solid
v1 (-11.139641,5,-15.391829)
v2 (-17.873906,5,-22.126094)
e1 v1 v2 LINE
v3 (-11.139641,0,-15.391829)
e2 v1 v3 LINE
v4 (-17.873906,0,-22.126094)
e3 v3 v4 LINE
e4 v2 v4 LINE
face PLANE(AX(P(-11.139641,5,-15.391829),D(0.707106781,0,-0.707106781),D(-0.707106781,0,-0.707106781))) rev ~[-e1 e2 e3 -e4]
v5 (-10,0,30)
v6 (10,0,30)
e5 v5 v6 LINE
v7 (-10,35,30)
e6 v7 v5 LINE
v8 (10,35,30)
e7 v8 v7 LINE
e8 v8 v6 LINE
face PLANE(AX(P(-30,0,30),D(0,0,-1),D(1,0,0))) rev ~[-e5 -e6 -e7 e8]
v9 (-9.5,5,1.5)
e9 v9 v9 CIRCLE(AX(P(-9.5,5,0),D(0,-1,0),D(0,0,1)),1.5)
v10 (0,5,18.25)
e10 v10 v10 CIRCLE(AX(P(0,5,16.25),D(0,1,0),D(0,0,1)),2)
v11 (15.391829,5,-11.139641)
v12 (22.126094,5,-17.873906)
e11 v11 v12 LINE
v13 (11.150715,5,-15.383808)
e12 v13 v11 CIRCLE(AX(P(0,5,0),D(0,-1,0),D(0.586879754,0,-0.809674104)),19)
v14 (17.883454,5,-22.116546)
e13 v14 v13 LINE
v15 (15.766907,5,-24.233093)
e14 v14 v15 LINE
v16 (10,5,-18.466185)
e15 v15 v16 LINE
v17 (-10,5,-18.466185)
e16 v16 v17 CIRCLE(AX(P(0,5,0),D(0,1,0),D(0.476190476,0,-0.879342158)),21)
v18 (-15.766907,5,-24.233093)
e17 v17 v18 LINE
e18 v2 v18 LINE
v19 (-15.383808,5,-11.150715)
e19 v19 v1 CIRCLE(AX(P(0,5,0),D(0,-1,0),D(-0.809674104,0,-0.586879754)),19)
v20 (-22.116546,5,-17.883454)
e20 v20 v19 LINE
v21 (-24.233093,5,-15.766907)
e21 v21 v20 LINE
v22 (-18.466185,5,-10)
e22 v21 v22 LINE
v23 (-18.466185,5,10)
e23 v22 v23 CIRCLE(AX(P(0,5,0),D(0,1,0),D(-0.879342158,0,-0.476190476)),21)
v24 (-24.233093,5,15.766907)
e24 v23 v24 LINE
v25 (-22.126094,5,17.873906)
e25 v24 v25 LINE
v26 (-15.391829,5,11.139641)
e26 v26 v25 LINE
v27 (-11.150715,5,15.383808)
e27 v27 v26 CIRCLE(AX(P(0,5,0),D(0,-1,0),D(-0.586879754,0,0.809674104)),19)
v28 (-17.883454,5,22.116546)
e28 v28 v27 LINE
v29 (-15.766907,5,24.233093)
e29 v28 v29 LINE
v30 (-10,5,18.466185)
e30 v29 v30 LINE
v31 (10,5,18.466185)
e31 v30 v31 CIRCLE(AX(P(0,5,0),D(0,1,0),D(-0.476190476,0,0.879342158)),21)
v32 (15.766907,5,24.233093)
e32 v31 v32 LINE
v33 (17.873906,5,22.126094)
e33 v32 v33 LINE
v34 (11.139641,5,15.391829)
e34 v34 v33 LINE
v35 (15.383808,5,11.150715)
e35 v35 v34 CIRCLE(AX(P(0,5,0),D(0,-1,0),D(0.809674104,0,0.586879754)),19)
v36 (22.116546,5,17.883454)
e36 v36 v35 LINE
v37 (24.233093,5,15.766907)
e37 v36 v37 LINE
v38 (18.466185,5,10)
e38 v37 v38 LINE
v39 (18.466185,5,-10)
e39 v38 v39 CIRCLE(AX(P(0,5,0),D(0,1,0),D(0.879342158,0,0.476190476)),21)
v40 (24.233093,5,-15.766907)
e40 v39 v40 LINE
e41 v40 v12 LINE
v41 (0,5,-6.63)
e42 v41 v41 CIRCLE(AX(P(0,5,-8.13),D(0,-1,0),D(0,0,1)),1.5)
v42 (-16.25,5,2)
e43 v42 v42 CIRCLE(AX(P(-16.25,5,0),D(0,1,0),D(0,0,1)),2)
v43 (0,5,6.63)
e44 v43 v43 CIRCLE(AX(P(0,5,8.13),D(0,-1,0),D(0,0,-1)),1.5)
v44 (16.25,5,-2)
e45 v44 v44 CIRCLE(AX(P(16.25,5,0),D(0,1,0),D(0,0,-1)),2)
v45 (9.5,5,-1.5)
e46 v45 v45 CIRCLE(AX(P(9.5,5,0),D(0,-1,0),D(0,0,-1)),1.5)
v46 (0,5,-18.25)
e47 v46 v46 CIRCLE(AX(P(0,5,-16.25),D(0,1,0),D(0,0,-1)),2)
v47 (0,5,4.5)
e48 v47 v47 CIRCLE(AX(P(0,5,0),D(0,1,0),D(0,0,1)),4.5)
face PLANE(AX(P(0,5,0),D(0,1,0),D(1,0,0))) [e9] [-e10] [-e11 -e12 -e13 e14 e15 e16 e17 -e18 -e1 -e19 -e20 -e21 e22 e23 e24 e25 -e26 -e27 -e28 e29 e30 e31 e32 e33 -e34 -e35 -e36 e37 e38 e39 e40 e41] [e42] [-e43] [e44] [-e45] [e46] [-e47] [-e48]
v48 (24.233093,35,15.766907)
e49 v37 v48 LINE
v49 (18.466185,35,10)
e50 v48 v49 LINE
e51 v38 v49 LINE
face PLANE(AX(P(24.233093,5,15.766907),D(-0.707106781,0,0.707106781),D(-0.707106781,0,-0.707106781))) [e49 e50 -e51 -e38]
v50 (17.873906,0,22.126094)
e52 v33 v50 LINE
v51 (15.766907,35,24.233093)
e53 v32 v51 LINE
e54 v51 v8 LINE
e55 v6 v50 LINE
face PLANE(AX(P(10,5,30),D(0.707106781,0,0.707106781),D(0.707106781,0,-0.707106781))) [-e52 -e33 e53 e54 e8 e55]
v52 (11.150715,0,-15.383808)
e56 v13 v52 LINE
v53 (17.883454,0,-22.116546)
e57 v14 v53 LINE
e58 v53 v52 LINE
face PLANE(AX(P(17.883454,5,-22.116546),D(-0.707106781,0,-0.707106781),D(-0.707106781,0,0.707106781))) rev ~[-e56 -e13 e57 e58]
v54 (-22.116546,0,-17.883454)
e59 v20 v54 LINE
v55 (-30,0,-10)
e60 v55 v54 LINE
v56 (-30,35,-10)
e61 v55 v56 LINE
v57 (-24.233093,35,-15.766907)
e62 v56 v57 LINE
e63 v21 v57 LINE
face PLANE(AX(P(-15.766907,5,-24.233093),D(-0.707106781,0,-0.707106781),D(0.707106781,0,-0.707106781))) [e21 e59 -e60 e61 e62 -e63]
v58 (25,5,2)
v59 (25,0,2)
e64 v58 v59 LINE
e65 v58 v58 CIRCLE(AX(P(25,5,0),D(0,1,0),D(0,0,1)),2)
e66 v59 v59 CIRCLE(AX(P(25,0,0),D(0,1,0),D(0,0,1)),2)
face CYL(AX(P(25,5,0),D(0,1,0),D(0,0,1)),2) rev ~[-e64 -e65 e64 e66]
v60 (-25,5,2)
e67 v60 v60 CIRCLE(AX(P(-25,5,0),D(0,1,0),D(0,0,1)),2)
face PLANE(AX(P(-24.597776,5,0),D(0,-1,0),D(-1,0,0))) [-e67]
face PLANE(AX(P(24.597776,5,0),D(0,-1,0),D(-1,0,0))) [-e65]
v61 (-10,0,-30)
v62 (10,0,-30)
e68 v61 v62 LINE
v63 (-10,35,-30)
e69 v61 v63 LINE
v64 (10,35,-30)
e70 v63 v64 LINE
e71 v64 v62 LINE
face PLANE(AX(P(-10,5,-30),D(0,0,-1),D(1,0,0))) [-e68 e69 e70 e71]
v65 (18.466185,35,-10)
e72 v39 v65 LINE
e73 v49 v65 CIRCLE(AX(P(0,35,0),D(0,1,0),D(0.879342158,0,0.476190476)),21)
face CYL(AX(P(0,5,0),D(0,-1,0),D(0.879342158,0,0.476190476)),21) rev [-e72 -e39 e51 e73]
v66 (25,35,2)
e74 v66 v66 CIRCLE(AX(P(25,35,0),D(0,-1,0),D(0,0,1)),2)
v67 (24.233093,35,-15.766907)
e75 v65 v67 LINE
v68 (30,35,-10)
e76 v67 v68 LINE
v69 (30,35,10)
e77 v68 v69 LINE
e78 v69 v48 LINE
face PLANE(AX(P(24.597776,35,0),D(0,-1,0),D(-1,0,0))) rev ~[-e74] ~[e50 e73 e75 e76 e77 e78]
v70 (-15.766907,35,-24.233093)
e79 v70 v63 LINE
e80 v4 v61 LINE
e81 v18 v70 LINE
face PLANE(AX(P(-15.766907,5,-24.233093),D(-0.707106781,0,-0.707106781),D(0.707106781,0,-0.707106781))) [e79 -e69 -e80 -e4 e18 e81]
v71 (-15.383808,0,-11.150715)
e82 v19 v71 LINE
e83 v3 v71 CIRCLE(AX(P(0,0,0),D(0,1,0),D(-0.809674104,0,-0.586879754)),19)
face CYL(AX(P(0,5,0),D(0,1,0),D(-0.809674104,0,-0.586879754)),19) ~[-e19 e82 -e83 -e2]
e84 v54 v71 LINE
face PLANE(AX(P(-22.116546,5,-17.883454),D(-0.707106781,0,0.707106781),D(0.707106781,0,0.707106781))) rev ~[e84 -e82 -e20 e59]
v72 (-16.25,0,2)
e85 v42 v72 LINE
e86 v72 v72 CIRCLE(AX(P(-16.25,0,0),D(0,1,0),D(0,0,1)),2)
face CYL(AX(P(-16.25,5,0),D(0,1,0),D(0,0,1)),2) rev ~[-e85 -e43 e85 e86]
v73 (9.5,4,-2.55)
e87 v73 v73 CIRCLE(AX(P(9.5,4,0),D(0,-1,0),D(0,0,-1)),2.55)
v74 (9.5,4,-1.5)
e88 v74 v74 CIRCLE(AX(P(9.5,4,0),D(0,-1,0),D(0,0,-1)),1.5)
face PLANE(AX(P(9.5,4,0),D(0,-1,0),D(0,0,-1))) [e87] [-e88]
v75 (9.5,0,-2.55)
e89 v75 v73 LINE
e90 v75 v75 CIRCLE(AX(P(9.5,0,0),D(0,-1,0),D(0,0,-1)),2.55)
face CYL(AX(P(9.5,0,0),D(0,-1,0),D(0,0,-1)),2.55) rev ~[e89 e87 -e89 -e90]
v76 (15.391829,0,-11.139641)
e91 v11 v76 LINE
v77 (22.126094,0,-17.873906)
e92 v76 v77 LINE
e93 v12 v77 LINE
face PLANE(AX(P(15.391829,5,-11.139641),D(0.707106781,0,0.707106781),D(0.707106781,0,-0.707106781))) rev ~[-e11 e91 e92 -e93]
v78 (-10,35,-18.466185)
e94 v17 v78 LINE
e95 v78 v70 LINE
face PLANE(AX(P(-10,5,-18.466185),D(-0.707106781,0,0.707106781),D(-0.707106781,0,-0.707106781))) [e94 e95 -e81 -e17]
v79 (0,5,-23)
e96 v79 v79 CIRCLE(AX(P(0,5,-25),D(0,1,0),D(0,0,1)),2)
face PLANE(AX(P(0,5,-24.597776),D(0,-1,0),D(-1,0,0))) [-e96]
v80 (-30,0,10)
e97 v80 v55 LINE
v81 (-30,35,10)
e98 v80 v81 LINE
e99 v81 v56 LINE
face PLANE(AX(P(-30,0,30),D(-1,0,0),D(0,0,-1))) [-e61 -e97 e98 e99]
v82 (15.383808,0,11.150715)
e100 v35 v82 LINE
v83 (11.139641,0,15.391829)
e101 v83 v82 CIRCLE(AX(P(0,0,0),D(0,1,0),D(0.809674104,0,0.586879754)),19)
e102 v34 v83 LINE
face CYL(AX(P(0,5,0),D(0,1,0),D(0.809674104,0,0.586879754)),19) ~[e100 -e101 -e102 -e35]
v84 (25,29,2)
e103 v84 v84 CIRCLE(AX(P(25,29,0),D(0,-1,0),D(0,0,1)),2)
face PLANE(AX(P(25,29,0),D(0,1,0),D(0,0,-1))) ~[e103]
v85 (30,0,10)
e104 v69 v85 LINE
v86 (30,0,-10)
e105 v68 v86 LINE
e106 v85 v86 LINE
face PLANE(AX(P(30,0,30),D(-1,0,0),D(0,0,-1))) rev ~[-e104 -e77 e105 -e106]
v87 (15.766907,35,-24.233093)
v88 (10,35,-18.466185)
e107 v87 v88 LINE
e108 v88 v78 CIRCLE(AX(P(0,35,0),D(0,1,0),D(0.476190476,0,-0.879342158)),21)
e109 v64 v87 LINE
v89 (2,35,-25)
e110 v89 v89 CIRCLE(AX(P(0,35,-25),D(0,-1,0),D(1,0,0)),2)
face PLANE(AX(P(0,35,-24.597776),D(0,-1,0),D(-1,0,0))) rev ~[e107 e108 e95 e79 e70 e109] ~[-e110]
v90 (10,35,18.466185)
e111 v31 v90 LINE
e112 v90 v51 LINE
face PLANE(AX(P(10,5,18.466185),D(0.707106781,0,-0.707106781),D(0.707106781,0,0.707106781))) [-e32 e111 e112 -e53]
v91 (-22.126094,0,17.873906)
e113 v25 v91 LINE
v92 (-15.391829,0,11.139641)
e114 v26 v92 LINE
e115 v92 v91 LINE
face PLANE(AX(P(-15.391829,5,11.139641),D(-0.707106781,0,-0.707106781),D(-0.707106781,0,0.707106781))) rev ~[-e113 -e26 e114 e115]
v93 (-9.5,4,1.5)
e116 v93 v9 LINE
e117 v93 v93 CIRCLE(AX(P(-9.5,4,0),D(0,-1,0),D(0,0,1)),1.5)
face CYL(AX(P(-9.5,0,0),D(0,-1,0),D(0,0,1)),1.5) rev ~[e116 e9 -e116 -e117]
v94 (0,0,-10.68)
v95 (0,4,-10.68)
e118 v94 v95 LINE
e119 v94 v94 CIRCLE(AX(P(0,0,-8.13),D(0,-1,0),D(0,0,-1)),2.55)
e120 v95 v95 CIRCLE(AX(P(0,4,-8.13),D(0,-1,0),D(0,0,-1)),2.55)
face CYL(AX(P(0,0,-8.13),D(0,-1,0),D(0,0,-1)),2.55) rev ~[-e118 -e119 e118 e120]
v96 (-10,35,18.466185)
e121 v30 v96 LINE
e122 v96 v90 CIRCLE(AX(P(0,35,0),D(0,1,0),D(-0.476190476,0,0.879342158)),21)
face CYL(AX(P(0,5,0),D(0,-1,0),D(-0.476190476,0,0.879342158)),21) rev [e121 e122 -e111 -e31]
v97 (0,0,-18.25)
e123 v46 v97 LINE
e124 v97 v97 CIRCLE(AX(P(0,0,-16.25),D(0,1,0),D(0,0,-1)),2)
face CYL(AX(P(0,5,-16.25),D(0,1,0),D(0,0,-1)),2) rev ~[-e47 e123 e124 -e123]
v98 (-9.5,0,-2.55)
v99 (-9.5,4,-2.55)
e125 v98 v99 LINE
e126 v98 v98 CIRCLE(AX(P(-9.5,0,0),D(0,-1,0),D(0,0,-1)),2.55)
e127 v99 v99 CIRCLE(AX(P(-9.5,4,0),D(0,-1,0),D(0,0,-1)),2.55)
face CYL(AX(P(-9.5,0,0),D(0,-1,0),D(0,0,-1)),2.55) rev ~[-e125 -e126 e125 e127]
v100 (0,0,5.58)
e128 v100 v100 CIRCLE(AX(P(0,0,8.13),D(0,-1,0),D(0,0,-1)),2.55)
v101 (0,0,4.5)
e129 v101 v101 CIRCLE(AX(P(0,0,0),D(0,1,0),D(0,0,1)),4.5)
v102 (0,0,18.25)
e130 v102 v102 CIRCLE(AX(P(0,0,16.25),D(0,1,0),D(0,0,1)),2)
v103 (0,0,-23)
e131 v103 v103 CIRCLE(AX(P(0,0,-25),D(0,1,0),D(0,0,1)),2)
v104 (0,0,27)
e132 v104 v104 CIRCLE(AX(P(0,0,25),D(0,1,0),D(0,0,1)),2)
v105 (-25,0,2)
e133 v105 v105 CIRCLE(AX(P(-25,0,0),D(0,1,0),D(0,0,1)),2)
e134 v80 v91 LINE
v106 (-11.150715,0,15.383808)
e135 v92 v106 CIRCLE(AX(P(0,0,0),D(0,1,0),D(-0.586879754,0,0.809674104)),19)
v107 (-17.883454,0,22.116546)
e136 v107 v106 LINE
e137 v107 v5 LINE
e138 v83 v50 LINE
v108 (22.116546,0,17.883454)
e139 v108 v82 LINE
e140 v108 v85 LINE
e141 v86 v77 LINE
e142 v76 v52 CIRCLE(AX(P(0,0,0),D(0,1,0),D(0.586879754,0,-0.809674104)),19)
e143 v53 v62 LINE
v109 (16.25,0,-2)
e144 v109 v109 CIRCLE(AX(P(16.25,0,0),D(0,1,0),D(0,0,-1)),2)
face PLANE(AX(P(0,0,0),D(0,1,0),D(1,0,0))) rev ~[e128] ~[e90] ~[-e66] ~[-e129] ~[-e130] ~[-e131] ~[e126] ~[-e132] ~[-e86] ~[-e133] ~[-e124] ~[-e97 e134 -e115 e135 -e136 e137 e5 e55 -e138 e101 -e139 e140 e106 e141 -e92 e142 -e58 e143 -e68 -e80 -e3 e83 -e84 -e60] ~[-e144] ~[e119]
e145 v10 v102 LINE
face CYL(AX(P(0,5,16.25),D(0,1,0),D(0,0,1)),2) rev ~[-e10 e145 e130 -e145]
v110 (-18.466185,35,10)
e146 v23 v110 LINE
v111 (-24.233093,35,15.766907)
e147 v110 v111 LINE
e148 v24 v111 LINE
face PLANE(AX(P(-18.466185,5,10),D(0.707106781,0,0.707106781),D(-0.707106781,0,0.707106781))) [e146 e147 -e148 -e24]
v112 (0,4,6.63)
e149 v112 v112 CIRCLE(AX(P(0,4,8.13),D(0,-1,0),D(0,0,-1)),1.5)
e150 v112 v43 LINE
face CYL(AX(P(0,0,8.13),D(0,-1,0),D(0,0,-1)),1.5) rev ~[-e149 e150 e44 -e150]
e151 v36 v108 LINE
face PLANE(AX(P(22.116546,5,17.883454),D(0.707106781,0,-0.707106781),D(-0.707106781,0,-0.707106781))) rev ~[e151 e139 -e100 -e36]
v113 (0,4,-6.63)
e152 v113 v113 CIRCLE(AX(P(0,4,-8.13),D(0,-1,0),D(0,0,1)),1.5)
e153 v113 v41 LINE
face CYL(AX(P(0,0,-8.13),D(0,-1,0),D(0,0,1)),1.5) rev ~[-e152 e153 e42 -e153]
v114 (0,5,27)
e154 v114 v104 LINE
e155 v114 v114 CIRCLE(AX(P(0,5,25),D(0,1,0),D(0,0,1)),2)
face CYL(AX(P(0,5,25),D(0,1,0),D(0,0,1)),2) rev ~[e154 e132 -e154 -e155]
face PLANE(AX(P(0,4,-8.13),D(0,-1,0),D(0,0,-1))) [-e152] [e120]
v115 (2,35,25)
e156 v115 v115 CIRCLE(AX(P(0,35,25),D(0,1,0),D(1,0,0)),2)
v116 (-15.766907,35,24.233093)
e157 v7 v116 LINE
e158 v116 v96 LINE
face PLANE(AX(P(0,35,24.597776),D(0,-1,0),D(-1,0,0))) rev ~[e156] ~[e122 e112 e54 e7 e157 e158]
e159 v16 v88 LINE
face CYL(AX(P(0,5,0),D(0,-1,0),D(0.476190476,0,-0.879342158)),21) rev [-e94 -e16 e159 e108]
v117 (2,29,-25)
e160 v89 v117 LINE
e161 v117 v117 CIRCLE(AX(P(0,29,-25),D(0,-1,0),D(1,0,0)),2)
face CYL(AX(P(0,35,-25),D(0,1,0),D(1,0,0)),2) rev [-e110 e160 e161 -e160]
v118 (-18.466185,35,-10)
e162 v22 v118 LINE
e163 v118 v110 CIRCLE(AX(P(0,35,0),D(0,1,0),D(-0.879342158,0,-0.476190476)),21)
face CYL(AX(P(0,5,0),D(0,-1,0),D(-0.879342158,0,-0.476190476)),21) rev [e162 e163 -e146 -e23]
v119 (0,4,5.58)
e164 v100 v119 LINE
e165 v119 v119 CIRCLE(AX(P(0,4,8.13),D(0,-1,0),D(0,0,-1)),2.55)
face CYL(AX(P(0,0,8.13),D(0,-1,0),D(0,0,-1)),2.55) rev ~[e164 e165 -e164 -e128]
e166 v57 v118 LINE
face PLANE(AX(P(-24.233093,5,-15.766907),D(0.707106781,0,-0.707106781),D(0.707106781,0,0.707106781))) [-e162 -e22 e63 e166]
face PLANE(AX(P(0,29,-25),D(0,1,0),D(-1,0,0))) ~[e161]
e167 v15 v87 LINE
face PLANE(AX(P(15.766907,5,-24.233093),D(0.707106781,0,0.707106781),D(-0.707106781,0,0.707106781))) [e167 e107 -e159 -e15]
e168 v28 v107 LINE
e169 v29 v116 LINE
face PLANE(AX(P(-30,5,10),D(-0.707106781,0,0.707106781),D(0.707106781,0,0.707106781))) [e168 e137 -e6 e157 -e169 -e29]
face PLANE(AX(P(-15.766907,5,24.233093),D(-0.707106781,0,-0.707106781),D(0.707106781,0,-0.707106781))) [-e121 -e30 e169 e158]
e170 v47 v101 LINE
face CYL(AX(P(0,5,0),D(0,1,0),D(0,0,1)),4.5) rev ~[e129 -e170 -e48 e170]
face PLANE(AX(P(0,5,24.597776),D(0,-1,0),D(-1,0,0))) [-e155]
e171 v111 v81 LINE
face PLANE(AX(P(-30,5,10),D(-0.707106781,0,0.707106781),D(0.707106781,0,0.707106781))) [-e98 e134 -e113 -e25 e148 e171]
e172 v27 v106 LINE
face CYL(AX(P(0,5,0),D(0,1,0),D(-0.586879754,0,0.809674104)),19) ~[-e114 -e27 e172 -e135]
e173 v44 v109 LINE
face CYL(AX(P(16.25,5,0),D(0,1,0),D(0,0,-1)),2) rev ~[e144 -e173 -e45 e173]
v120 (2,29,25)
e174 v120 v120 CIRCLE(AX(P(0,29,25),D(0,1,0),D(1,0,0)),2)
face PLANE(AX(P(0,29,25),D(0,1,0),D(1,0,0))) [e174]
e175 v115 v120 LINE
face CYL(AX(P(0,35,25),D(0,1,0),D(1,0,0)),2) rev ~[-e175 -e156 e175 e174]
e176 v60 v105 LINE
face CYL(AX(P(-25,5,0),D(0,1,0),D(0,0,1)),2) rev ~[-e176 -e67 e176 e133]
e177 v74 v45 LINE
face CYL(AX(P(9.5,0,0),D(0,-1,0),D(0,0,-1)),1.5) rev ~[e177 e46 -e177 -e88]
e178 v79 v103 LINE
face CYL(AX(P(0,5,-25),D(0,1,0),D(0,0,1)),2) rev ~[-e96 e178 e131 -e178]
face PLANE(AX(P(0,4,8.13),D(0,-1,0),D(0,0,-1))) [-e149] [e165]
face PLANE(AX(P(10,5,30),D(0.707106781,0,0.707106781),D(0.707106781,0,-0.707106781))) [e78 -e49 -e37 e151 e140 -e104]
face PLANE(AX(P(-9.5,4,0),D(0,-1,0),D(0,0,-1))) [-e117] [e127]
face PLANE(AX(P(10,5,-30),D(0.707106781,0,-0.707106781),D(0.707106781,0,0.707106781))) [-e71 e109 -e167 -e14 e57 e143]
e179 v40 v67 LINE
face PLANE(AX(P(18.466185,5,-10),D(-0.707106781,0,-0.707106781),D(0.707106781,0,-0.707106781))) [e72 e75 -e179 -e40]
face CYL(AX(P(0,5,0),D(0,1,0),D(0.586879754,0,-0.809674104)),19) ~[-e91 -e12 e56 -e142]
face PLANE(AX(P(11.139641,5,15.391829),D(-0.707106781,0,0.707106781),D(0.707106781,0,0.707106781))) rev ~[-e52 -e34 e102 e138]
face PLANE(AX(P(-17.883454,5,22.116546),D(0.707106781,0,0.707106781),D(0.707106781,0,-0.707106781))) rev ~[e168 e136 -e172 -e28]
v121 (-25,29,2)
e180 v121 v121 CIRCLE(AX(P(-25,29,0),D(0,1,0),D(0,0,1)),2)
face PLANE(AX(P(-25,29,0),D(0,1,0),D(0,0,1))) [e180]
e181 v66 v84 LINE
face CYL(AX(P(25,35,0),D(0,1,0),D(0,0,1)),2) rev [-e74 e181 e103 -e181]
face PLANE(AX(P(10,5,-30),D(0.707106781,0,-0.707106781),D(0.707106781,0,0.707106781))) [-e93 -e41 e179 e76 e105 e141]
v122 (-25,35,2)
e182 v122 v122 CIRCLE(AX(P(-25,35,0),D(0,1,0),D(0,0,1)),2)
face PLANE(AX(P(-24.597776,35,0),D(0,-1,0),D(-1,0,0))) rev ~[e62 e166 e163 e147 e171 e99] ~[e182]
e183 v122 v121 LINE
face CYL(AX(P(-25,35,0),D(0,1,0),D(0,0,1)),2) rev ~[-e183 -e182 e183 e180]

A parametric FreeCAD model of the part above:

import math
import FreeCAD as App
import Part
import Sketcher
from FreeCAD import Vector
Q = App.Units.Quantity


def add_polygon(sketch, points):
    """Adds a closed chain of lines whose ends are joined by coincident constraints."""
    first, n = sketch.GeometryCount, len(points)
    for a, b in zip(points, points[1:] + points[:1]):
        sketch.addGeometry(Part.LineSegment(App.Vector(*a, 0), App.Vector(*b, 0)), False)
    for i in range(n):
        sketch.addConstraint(Sketcher.Constraint("Coincident", first + i, 2, first + (i + 1) % n, 1))

doc = App.newDocument("Part")
body = doc.addObject("PartDesign::Body", "Body")

sketch1 = doc.addObject("Sketcher::SketchObject", "Sketch")
body.addObject(sketch1)
sketch1.AttachmentSupport = (doc.XZ_Plane, [""])
sketch1.MapMode = "FlatFace"
add_polygon(sketch1, [(-30, -30), (-30, 30), (30, 30), (30, -30)])
sketch1.addConstraint([
    Sketcher.Constraint("Vertical", 0),
    Sketcher.Constraint("Horizontal", 1),
    Sketcher.Constraint("Vertical", 2),
    Sketcher.Constraint("Horizontal", 3),
    Sketcher.Constraint("Symmetric", 0, 2, 2, 2, -1, 1),
    Sketcher.Constraint("Equal", 3, 0),
    Sketcher.Constraint("DistanceX", 1, 1, 1, 2, Q("60 mm")),
])
pad1 = doc.addObject("PartDesign::Pad", "Pad")
body.addObject(pad1)
pad1.Profile = sketch1
pad1.Length = 5
pad1.Reversed = True

sketch2 = doc.addObject("Sketcher::SketchObject", "Sketch001")
body.addObject(sketch2)
sketch2.AttachmentSupport = (doc.XZ_Plane, [""])
sketch2.MapMode = "FlatFace"
sketch2.AttachmentOffset = App.Placement(Vector(0, 0, -5), App.Rotation())
sketch2.addGeometry([
    Part.Circle(Vector(-16.2, 0, 0), Vector(0, 0, 1), 2),
    Part.Circle(Vector(16.2, 0, 0), Vector(0, 0, 1), 2),
    Part.Circle(Vector(0, 16.2, 0), Vector(0, 0, 1), 2),
    Part.Circle(Vector(0, -16.2, 0), Vector(0, 0, 1), 2),
], False)
sketch2.addConstraint([
    Sketcher.Constraint("Equal", 0, 1),
    Sketcher.Constraint("Equal", 1, 2),
    Sketcher.Constraint("Equal", 2, 3),
    Sketcher.Constraint("Symmetric", 0, 3, 1, 3, -1, 1),
    Sketcher.Constraint("Symmetric", 2, 3, 3, 3, -1, 1),
    Sketcher.Constraint("PointOnObject", 0, 3, -1),
    Sketcher.Constraint("PointOnObject", 2, 3, -2),
    Sketcher.Constraint("Diameter", 0, Q("4 mm")),
    Sketcher.Constraint("DistanceX", 0, 3, 1, 3, Q("32.5 mm")),
    Sketcher.Constraint("DistanceY", 3, 3, 2, 3, Q("32.5 mm")),
])
pocket1 = doc.addObject("PartDesign::Pocket", "Pocket")
body.addObject(pocket1)
pocket1.Profile = sketch2
pocket1.Type = "ThroughAll"
pocket1.Reversed = True

sketch3 = doc.addObject("Sketcher::SketchObject", "Sketch002")
body.addObject(sketch3)
sketch3.AttachmentSupport = (doc.XZ_Plane, [""])
sketch3.MapMode = "FlatFace"
sketch3.AttachmentOffset = App.Placement(Vector(0, 0, -5), App.Rotation())
sketch3.addGeometry(Part.Circle(Vector(0, 0, 0), Vector(0, 0, 1), 4.5), False)
sketch3.addConstraint([
    Sketcher.Constraint("Coincident", 0, 3, -1, 1),
    Sketcher.Constraint("Diameter", 0, Q("9 mm")),
])
pocket2 = doc.addObject("PartDesign::Pocket", "Pocket001")
body.addObject(pocket2)
pocket2.Profile = sketch3
pocket2.Type = "ThroughAll"
pocket2.Reversed = True

sketch4 = doc.addObject("Sketcher::SketchObject", "Sketch003")
body.addObject(sketch4)
sketch4.AttachmentSupport = (doc.XZ_Plane, [""])
sketch4.MapMode = "FlatFace"
sketch4.AttachmentOffset = App.Placement(Vector(0, 0, -5), App.Rotation())
sketch4.addGeometry(Part.Circle(Vector(0, -9.5, 0), Vector(0, 0, 1), 1.5), False)
sketch4.addConstraint([
    Sketcher.Constraint("PointOnObject", 0, 3, -2),
    Sketcher.Constraint("Diameter", 0, Q("3 mm")),
    Sketcher.Constraint("DistanceY", 0, 3, -1, 1, Q("9.5 mm")),
])
pocket3 = doc.addObject("PartDesign::Pocket", "Pocket002")
body.addObject(pocket3)
pocket3.Profile = sketch4
pocket3.Length = 10
pocket3.Reversed = True

sketch5 = doc.addObject("Sketcher::SketchObject", "Sketch004")
body.addObject(sketch5)
sketch5.AttachmentSupport = (doc.XZ_Plane, [""])
sketch5.MapMode = "FlatFace"
sketch5.addGeometry(Part.Circle(Vector(0, -9.5, 0), Vector(0, 0, 1), 2.5), False)
sketch5.addConstraint([
    Sketcher.Constraint("PointOnObject", 0, 3, -2),
    Sketcher.Constraint("Diameter", 0, Q("5 mm")),
    Sketcher.Constraint("DistanceY", 0, 3, -1, 1, Q("9.5 mm")),
])
pocket4 = doc.addObject("PartDesign::Pocket", "Pocket003")
body.addObject(pocket4)
pocket4.Profile = sketch5
pocket4.Length = 3
doc.recompute()

mirrored = doc.addObject("PartDesign::Mirrored", "Mirrored")
body.addObject(mirrored)
mirrored.Originals = [pocket3, pocket4]
mirrored.MirrorPlane = (doc.XY_Plane, [""])
body.Tip = mirrored

sketch6 = doc.addObject("Sketcher::SketchObject", "Sketch005")
body.addObject(sketch6)
sketch6.AttachmentSupport = (doc.XZ_Plane, [""])
sketch6.MapMode = "FlatFace"
sketch6.AttachmentOffset = App.Placement(Vector(0, 0, -5), App.Rotation())
add_polygon(sketch6, [(-3.8, -6.6), (-3.8, -19.1), (3.5, -19.1), (3.5, -6.6), (6.7, -3.3), (18.9, -3.3), (18.9, 3.7), (6.7, 3.7), (3.9, 6.5), (3.9, 19.3), (-3.2, 19.3), (-3.2, 7.2), (-6.4, 3.7), (-19.7, 3.7), (-19.7, -3.3), (-6.4, -3.3)])
sketch6.addGeometry(Part.Circle(Vector(0, -16.2, 0), Vector(0, 0, 1), 2), False)
sketch6.addGeometry(Part.Circle(Vector(-16.2, 0, 0), Vector(0, 0, 1), 2), False)
sketch6.addGeometry(Part.Circle(Vector(0, 0, 0), Vector(0, 0, 1), 4.5), False)
sketch6.addGeometry(Part.Circle(Vector(16.2, 0, 0), Vector(0, 0, 1), 2), False)
sketch6.addGeometry(Part.Circle(Vector(0, 16.2, 0), Vector(0, 0, 1), 2), False)
sketch6.addConstraint([
    Sketcher.Constraint("Vertical", 0),
    Sketcher.Constraint("Horizontal", 1),
    Sketcher.Constraint("Vertical", 2),
    Sketcher.Constraint("Horizontal", 4),
    Sketcher.Constraint("Vertical", 5),
    Sketcher.Constraint("Horizontal", 6),
    Sketcher.Constraint("Vertical", 8),
    Sketcher.Constraint("Horizontal", 9),
    Sketcher.Constraint("Vertical", 10),
    Sketcher.Constraint("Horizontal", 12),
    Sketcher.Constraint("Vertical", 13),
    Sketcher.Constraint("Horizontal", 14),
    Sketcher.Constraint("Coincident", 18, 3, -1, 1),
    Sketcher.Constraint("Equal", 16, 17),
    Sketcher.Constraint("Equal", 17, 19),
    Sketcher.Constraint("Equal", 19, 20),
    Sketcher.Constraint("Symmetric", 17, 3, 19, 3, -1, 1),
    Sketcher.Constraint("Symmetric", 16, 3, 20, 3, -1, 1),
    Sketcher.Constraint("PointOnObject", 16, 3, -2),
    Sketcher.Constraint("PointOnObject", 17, 3, -1),
    Sketcher.Constraint("Perpendicular", 3, 7),
    Sketcher.Constraint("Horizontal", 6, 2, 11, 2),
    Sketcher.Constraint("Horizontal", 4, 2, 13, 2),
    Sketcher.Constraint("Horizontal", 2, 2, 15, 2),
    Sketcher.Constraint("Vertical", 3, 2, 6, 2),
    Sketcher.Constraint("Vertical", 11, 2, 14, 2),
    Sketcher.Constraint("Diameter", 16, Q("4 mm")),
    Sketcher.Constraint("Diameter", 18, Q("9 mm")),
    Sketcher.Constraint("Angle", 3, Q("45 deg")),
    Sketcher.Constraint("DistanceX", 17, 3, 19, 3, Q("32.5 mm")),
    Sketcher.Constraint("DistanceY", 16, 3, 20, 3, Q("32.5 mm")),
    Sketcher.Constraint("DistanceX", 2, 2, 4, 2, Q("15.376 mm")),
    Sketcher.Constraint("DistanceX", 4, 1, 4, 2, Q("12.10639 mm")),
    Sketcher.Constraint("DistanceX", 9, 2, 9, 1, Q("7.113609 mm")),
    Sketcher.Constraint("DistanceY", 0, 2, 0, 1, Q("12.548229 mm")),
    Sketcher.Constraint("DistanceX", -1, 1, 1, 2, Q("3.475801 mm")),
    Sketcher.Constraint("Distance", 15, Q("4.136121 mm")),
    Sketcher.Constraint("DistanceX", 1, 1, 1, 2, Q("7.305073 mm")),
    Sketcher.Constraint("DistanceX", 12, 2, 12, 1, Q("13.314084 mm")),
    Sketcher.Constraint("DistanceY", 5, 1, 5, 2, Q("6.981057 mm")),
    Sketcher.Constraint("DistanceY", 8, 1, 8, 2, Q("12.798605 mm")),
    Sketcher.Constraint("DistanceY", 10, 2, 10, 1, Q("12.076934 mm")),
    Sketcher.Constraint("DistanceY", 0, 2, -1, 1, Q("19.14636 mm")),
    Sketcher.Constraint("DistanceY", -1, 1, 7, 2, Q("6.52449 mm")),
])
pad2 = doc.addObject("PartDesign::Pad", "Pad001")
body.addObject(pad2)
pad2.Profile = sketch6
pad2.Length = 5

sketch7 = doc.addObject("Sketcher::SketchObject", "Sketch006")
body.addObject(sketch7)
sketch7.AttachmentSupport = (doc.XZ_Plane, [""])
sketch7.MapMode = "FlatFace"
sketch7.addGeometry([
    Part.Circle(Vector(0, 8.1, 0), Vector(0, 0, 1), 1.5),
    Part.Circle(Vector(9.5, 0, 0), Vector(0, 0, 1), 1.5),
    Part.Circle(Vector(-9.5, 0, 0), Vector(0, 0, 1), 1.5),
    Part.Circle(Vector(0, -8.1, 0), Vector(0, 0, 1), 1.5),
], False)
sketch7.addConstraint([
    Sketcher.Constraint("Equal", 0, 1),
    Sketcher.Constraint("Equal", 1, 2),
    Sketcher.Constraint("Equal", 2, 3),
    Sketcher.Constraint("Symmetric", 1, 3, 2, 3, -1, 1),
    Sketcher.Constraint("Symmetric", 0, 3, 3, 3, -1, 1),
    Sketcher.Constraint("PointOnObject", 0, 3, -2),
    Sketcher.Constraint("PointOnObject", 1, 3, -1),
    Sketcher.Constraint("Diameter", 0, Q("3 mm")),
    Sketcher.Constraint("DistanceX", 2, 3, 1, 3, Q("19 mm")),
    Sketcher.Constraint("DistanceY", -1, 1, 0, 3, Q("8.13 mm")),
])
pocket5 = doc.addObject("PartDesign::Pocket", "Pocket004")
body.addObject(pocket5)
pocket5.Profile = sketch7
pocket5.Length = 5

sketch8 = doc.addObject("Sketcher::SketchObject", "Sketch007")
body.addObject(sketch8)
sketch8.AttachmentSupport = (doc.XZ_Plane, [""])
sketch8.MapMode = "FlatFace"
sketch8.addGeometry([
    Part.Circle(Vector(0, 8.1, 0), Vector(0, 0, 1), 2.5),
    Part.Circle(Vector(9.5, 0, 0), Vector(0, 0, 1), 2.5),
    Part.Circle(Vector(0, -8.1, 0), Vector(0, 0, 1), 2.5),
    Part.Circle(Vector(-9.5, 0, 0), Vector(0, 0, 1), 2.5),
], False)
sketch8.addConstraint([
    Sketcher.Constraint("Equal", 0, 1),
    Sketcher.Constraint("Equal", 1, 2),
    Sketcher.Constraint("Equal", 2, 3),
    Sketcher.Constraint("Symmetric", 0, 3, 2, 3, -1, 1),
    Sketcher.Constraint("Symmetric", 1, 3, 3, 3, -1, 1),
    Sketcher.Constraint("PointOnObject", 0, 3, -2),
    Sketcher.Constraint("PointOnObject", 1, 3, -1),
    Sketcher.Constraint("Diameter", 0, Q("5.1 mm")),
    Sketcher.Constraint("DistanceX", 3, 3, 1, 3, Q("19 mm")),
    Sketcher.Constraint("DistanceY", -1, 1, 0, 3, Q("8.13 mm")),
])
pocket6 = doc.addObject("PartDesign::Pocket", "Pocket005")
body.addObject(pocket6)
pocket6.Profile = sketch8
pocket6.Length = 4

sketch9 = doc.addObject("Sketcher::SketchObject", "Sketch008")
body.addObject(sketch9)
sketch9.AttachmentSupport = (doc.XZ_Plane, [""])
sketch9.MapMode = "FlatFace"
sketch9.AttachmentOffset = App.Placement(Vector(0, 0, -5), App.Rotation())
sketch9.addGeometry(Part.Circle(Vector(-25, 0, 0), Vector(0, 0, 1), 2), False)
sketch9.addGeometry(Part.Circle(Vector(0, -25, 0), Vector(0, 0, 1), 2), False)
sketch9.addGeometry(Part.Circle(Vector(25, 0, 0), Vector(0, 0, 1), 2), False)
sketch9.addGeometry(Part.Circle(Vector(0, 25, 0), Vector(0, 0, 1), 2), False)
add_polygon(sketch9, [(-30, -30), (-30, -10), (-10, -30)])
add_polygon(sketch9, [(30, -10), (30, -30), (10, -30)])
add_polygon(sketch9, [(10, 30), (30, 30), (30, 10)])
add_polygon(sketch9, [(-30, 10), (-30, 30), (-10, 30)])
sketch9.addConstraint([
    Sketcher.Constraint("Vertical", 4),
    Sketcher.Constraint("Horizontal", 6),
    Sketcher.Constraint("Vertical", 7),
    Sketcher.Constraint("Horizontal", 8),
    Sketcher.Constraint("Horizontal", 10),
    Sketcher.Constraint("Vertical", 11),
    Sketcher.Constraint("Vertical", 13),
    Sketcher.Constraint("Horizontal", 14),
    Sketcher.Constraint("Equal", 0, 1),
    Sketcher.Constraint("Equal", 1, 2),
    Sketcher.Constraint("Equal", 2, 3),
    Sketcher.Constraint("Symmetric", 0, 3, 2, 3, -1, 1),
    Sketcher.Constraint("Symmetric", 1, 3, 3, 3, -1, 1),
    Sketcher.Constraint("Symmetric", 6, 2, 10, 2, -1, 1),
    Sketcher.Constraint("Symmetric", 7, 2, 13, 2, -1, 1),
    Sketcher.Constraint("Symmetric", 6, 2, 7, 2, -2),
    Sketcher.Constraint("PointOnObject", 0, 3, -1),
    Sketcher.Constraint("PointOnObject", 1, 3, -2),
    Sketcher.Constraint("Perpendicular", 5, 9),
    Sketcher.Constraint("Perpendicular", 9, 12),
    Sketcher.Constraint("Perpendicular", 12, 15),
    Sketcher.Constraint("Horizontal", 4, 2, 9, 2),
    Sketcher.Constraint("Horizontal", 11, 2, 15, 2),
    Sketcher.Constraint("Vertical", 8, 2, 12, 2),
    Sketcher.Constraint("Vertical", 5, 2, 14, 2),
    Sketcher.Constraint("Diameter", 0, Q("4 mm")),
    Sketcher.Constraint("DistanceX", 6, 2, 6, 1, Q("20 mm")),
    Sketcher.Constraint("DistanceX", 0, 3, -1, 1, Q("25 mm")),
    Sketcher.Constraint("DistanceY", 1, 3, -1, 1, Q("25 mm")),
    Sketcher.Constraint("DistanceX", 4, 2, -1, 1, Q("30 mm")),
    Sketcher.Constraint("DistanceY", 4, 2, -1, 1, Q("10 mm")),
])
pocket7 = doc.addObject("PartDesign::Pocket", "Pocket006")
body.addObject(pocket7)
pocket7.Profile = sketch9
pocket7.Length = 10
pocket7.Reversed = True

sketch10 = doc.addObject("Sketcher::SketchObject", "Sketch009")
body.addObject(sketch10)
sketch10.AttachmentSupport = (doc.XZ_Plane, [""])
sketch10.MapMode = "FlatFace"
sketch10.AttachmentOffset = App.Placement(Vector(0, 0, -5), App.Rotation())
sketch10.addGeometry([
    Part.LineSegment(Vector(10, -30, 0), Vector(-10, -30, 0)),
    Part.LineSegment(Vector(-10, -30, 0), Vector(-16, -24, 0)),
    Part.LineSegment(Vector(-16, -24, 0), Vector(-10, -18, 0)),
    Part.ArcOfCircle(Part.Circle(Vector(0, 0, 0), Vector(0, 0, 1), 21), math.radians(-118), math.radians(-62)),
    Part.LineSegment(Vector(10, -18, 0), Vector(16, -24, 0)),
    Part.LineSegment(Vector(16, -24, 0), Vector(10, -30, 0)),
    Part.LineSegment(Vector(30, 10, 0), Vector(30, -10, 0)),
    Part.LineSegment(Vector(30, -10, 0), Vector(24, -16, 0)),
    Part.LineSegment(Vector(24, -16, 0), Vector(18, -10, 0)),
    Part.ArcOfCircle(Part.Circle(Vector(0, 0, 0), Vector(0, 0, 1), 21), math.radians(-28), math.radians(28)),
    Part.LineSegment(Vector(18, 10, 0), Vector(24, 16, 0)),
    Part.LineSegment(Vector(24, 16, 0), Vector(30, 10, 0)),
    Part.LineSegment(Vector(-10, 30, 0), Vector(10, 30, 0)),
    Part.LineSegment(Vector(10, 30, 0), Vector(16, 24, 0)),
    Part.LineSegment(Vector(16, 24, 0), Vector(10, 18, 0)),
    Part.ArcOfCircle(Part.Circle(Vector(0, 0, 0), Vector(0, 0, 1), 21), math.radians(62), math.radians(118)),
    Part.LineSegment(Vector(-10, 18, 0), Vector(-16, 24, 0)),
    Part.LineSegment(Vector(-16, 24, 0), Vector(-10, 30, 0)),
    Part.LineSegment(Vector(-30, -10, 0), Vector(-30, 10, 0)),
    Part.LineSegment(Vector(-30, 10, 0), Vector(-24, 16, 0)),
    Part.LineSegment(Vector(-24, 16, 0), Vector(-18, 10, 0)),
    Part.ArcOfCircle(Part.Circle(Vector(0, 0, 0), Vector(0, 0, 1), 21), math.radians(152), math.radians(208)),
    Part.LineSegment(Vector(-18, -10, 0), Vector(-24, -16, 0)),
    Part.LineSegment(Vector(-24, -16, 0), Vector(-30, -10, 0)),
], False)
sketch10.addConstraint([
    Sketcher.Constraint("Coincident", 0, 2, 1, 1),
    Sketcher.Constraint("Coincident", 1, 2, 2, 1),
    Sketcher.Constraint("Coincident", 2, 2, 3, 1),
    Sketcher.Constraint("Coincident", 3, 2, 4, 1),
    Sketcher.Constraint("Coincident", 4, 2, 5, 1),
    Sketcher.Constraint("Coincident", 5, 2, 0, 1),
    Sketcher.Constraint("Coincident", 6, 2, 7, 1),
    Sketcher.Constraint("Coincident", 7, 2, 8, 1),
    Sketcher.Constraint("Coincident", 8, 2, 9, 1),
    Sketcher.Constraint("Coincident", 9, 2, 10, 1),
    Sketcher.Constraint("Coincident", 10, 2, 11, 1),
    Sketcher.Constraint("Coincident", 11, 2, 6, 1),
    Sketcher.Constraint("Coincident", 12, 2, 13, 1),
    Sketcher.Constraint("Coincident", 13, 2, 14, 1),
    Sketcher.Constraint("Coincident", 14, 2, 15, 1),
    Sketcher.Constraint("Coincident", 15, 2, 16, 1),
    Sketcher.Constraint("Coincident", 16, 2, 17, 1),
    Sketcher.Constraint("Coincident", 17, 2, 12, 1),
    Sketcher.Constraint("Coincident", 18, 2, 19, 1),
    Sketcher.Constraint("Coincident", 19, 2, 20, 1),
    Sketcher.Constraint("Coincident", 20, 2, 21, 1),
    Sketcher.Constraint("Coincident", 21, 2, 22, 1),
    Sketcher.Constraint("Coincident", 22, 2, 23, 1),
    Sketcher.Constraint("Coincident", 23, 2, 18, 1),
    Sketcher.Constraint("Horizontal", 0),
    Sketcher.Constraint("Vertical", 6),
    Sketcher.Constraint("Horizontal", 12),
    Sketcher.Constraint("Vertical", 18),
    Sketcher.Constraint("Coincident", 3, 3, -1, 1),
    Sketcher.Constraint("Coincident", 9, 3, -1, 1),
    Sketcher.Constraint("Coincident", 15, 3, -1, 1),
    Sketcher.Constraint("Coincident", 21, 3, -1, 1),
    Sketcher.Constraint("Equal", 3, 9),
    Sketcher.Constraint("Equal", 9, 15),
    Sketcher.Constraint("Equal", 15, 21),
    Sketcher.Constraint("Symmetric", 0, 2, 12, 2, -1, 1),
    Sketcher.Constraint("Symmetric", 1, 2, 13, 2, -1, 1),
    Sketcher.Constraint("Symmetric", 4, 2, 16, 2, -1, 1),
    Sketcher.Constraint("Symmetric", 6, 2, 18, 2, -1, 1),
    Sketcher.Constraint("Symmetric", 7, 2, 19, 2, -1, 1),
    Sketcher.Constraint("Symmetric", 10, 2, 22, 2, -1, 1),
    Sketcher.Constraint("Symmetric", 1, 2, 4, 2, -2),
    Sketcher.Constraint("Symmetric", 10, 2, 19, 2, -2),
    Sketcher.Constraint("Perpendicular", 1, 2),
    Sketcher.Constraint("Perpendicular", 2, 4),
    Sketcher.Constraint("Perpendicular", 4, 5),
    Sketcher.Constraint("Parallel", 5, 7),
    Sketcher.Constraint("Perpendicular", 7, 8),
    Sketcher.Constraint("Perpendicular", 8, 10),
    Sketcher.Constraint("Perpendicular", 10, 11),
    Sketcher.Constraint("Perpendicular", 13, 14),
    Sketcher.Constraint("Perpendicular", 14, 16),
    Sketcher.Constraint("Perpendicular", 16, 17),
    Sketcher.Constraint("Perpendicular", 19, 20),
    Sketcher.Constraint("Perpendicular", 20, 22),
    Sketcher.Constraint("Perpendicular", 22, 23),
    Sketcher.Constraint("Horizontal", 2, 2, 3, 2),
    Sketcher.Constraint("Horizontal", 6, 2, 8, 2),
    Sketcher.Constraint("Vertical", 0, 2, 2, 2),
    Sketcher.Constraint("Equal", 12, 6),
    Sketcher.Constraint("Equal", 5, 7),
    Sketcher.Constraint("Radius", 3, Q("21 mm")),
    Sketcher.Constraint("DistanceX", 0, 2, 0, 1, Q("20 mm")),
    Sketcher.Constraint("DistanceY", 0, 2, -1, 1, Q("30 mm")),
])
pad3 = doc.addObject("PartDesign::Pad", "Pad002")
body.addObject(pad3)
pad3.Profile = sketch10
pad3.Length = 30
pad3.Reversed = True

sketch11 = doc.addObject("Sketcher::SketchObject", "Sketch010")
body.addObject(sketch11)
sketch11.AttachmentSupport = (doc.XZ_Plane, [""])
sketch11.MapMode = "FlatFace"
sketch11.AttachmentOffset = App.Placement(Vector(0, 0, -35), App.Rotation())
sketch11.addGeometry(Part.Circle(Vector(-25, 0, 0), Vector(0, 0, 1), 2), False)
sketch11.addConstraint([
    Sketcher.Constraint("PointOnObject", 0, 3, -1),
    Sketcher.Constraint("Diameter", 0, Q("4 mm")),
    Sketcher.Constraint("DistanceX", 0, 3, -1, 1, Q("25 mm")),
])
pocket8 = doc.addObject("PartDesign::Pocket", "Pocket007")
body.addObject(pocket8)
pocket8.Profile = sketch11
pocket8.Length = 6
pocket8.Reversed = True
doc.recompute()

mirrored2 = doc.addObject("PartDesign::Mirrored", "Mirrored001")
body.addObject(mirrored2)
mirrored2.Originals = [pocket8]
mirrored2.MirrorPlane = (doc.YZ_Plane, [""])
body.Tip = mirrored2
doc.recompute()

datumplane = doc.addObject("PartDesign::Plane", "DatumPlane")
body.addObject(datumplane)
datumplane.Placement = App.Placement(Vector(0, 0, 0), App.Rotation(Vector(0.707106781, 0, 0.707106781), Vector(0, -1, 0), Vector(0.707106781, 0, -0.707106781), "ZXY"))
mirrored3 = doc.addObject("PartDesign::Mirrored", "Mirrored002")
body.addObject(mirrored3)
mirrored3.Originals = [pocket8]
mirrored3.MirrorPlane = (datumplane, [""])
body.Tip = mirrored3

sketch12 = doc.addObject("Sketcher::SketchObject", "Sketch011")
body.addObject(sketch12)
sketch12.AttachmentSupport = (doc.XZ_Plane, [""])
sketch12.MapMode = "FlatFace"
sketch12.AttachmentOffset = App.Placement(Vector(0, 0, -35), App.Rotation())
sketch12.addGeometry(Part.Circle(Vector(0, 25, 0), Vector(0, 0, 1), 2), False)
sketch12.addConstraint([
    Sketcher.Constraint("PointOnObject", 0, 3, -2),
    Sketcher.Constraint("Diameter", 0, Q("4 mm")),
    Sketcher.Constraint("DistanceY", -1, 1, 0, 3, Q("25 mm")),
])
pocket9 = doc.addObject("PartDesign::Pocket", "Pocket008")
body.addObject(pocket9)
pocket9.Profile = sketch12
pocket9.Length = 6
pocket9.Reversed = True

sketch13 = doc.addObject("Sketcher::SketchObject", "Sketch012")
body.addObject(sketch13)
sketch13.AttachmentSupport = (doc.XZ_Plane, [""])
sketch13.MapMode = "FlatFace"
sketch13.AttachmentOffset = App.Placement(Vector(0, 0, -5), App.Rotation())
sketch13.addGeometry([
    Part.LineSegment(Vector(-22, -18, 0), Vector(-15, -11, 0)),
    Part.ArcOfCircle(Part.Circle(Vector(0, 0, 0), Vector(0, 0, 1), 19), math.radians(-144.06), math.radians(-125.89)),
    Part.LineSegment(Vector(-11, -15, 0), Vector(-18, -22, 0)),
    Part.LineSegment(Vector(-18, -22, 0), Vector(-22, -18, 0)),
    Part.LineSegment(Vector(22, -18, 0), Vector(18, -22, 0)),
    Part.LineSegment(Vector(18, -22, 0), Vector(11, -15, 0)),
    Part.ArcOfCircle(Part.Circle(Vector(0, 0, 0), Vector(0, 0, 1), 19), math.radians(-54.06), math.radians(-35.89)),
    Part.LineSegment(Vector(15, -11, 0), Vector(22, -18, 0)),
    Part.LineSegment(Vector(18, 22, 0), Vector(22, 18, 0)),
    Part.LineSegment(Vector(22, 18, 0), Vector(15, 11, 0)),
    Part.ArcOfCircle(Part.Circle(Vector(0, 0, 0), Vector(0, 0, 1), 19), math.radians(35.94), math.radians(54.11)),
    Part.LineSegment(Vector(11, 15, 0), Vector(18, 22, 0)),
    Part.LineSegment(Vector(-22, 18, 0), Vector(-18, 22, 0)),
    Part.LineSegment(Vector(-18, 22, 0), Vector(-11, 15, 0)),
    Part.ArcOfCircle(Part.Circle(Vector(0, 0, 0), Vector(0, 0, 1), 19), math.radians(125.94), math.radians(144.11)),
    Part.LineSegment(Vector(-15, 11, 0), Vector(-22, 18, 0)),
], False)
sketch13.addConstraint([
    Sketcher.Constraint("Coincident", 0, 2, 1, 1),
    Sketcher.Constraint("Coincident", 1, 2, 2, 1),
    Sketcher.Constraint("Coincident", 2, 2, 3, 1),
    Sketcher.Constraint("Coincident", 3, 2, 0, 1),
    Sketcher.Constraint("Coincident", 4, 2, 5, 1),
    Sketcher.Constraint("Coincident", 5, 2, 6, 1),
    Sketcher.Constraint("Coincident", 6, 2, 7, 1),
    Sketcher.Constraint("Coincident", 7, 2, 4, 1),
    Sketcher.Constraint("Coincident", 8, 2, 9, 1),
    Sketcher.Constraint("Coincident", 9, 2, 10, 1),
    Sketcher.Constraint("Coincident", 10, 2, 11, 1),
    Sketcher.Constraint("Coincident", 11, 2, 8, 1),
    Sketcher.Constraint("Coincident", 12, 2, 13, 1),
    Sketcher.Constraint("Coincident", 13, 2, 14, 1),
    Sketcher.Constraint("Coincident", 14, 2, 15, 1),
    Sketcher.Constraint("Coincident", 15, 2, 12, 1),
    Sketcher.Constraint("Coincident", 1, 3, -1, 1),
    Sketcher.Constraint("Coincident", 6, 3, -1, 1),
    Sketcher.Constraint("Coincident", 10, 3, -1, 1),
    Sketcher.Constraint("Coincident", 14, 3, -1, 1),
    Sketcher.Constraint("Equal", 1, 6),
    Sketcher.Constraint("Equal", 6, 10),
    Sketcher.Constraint("Equal", 10, 14),
    Sketcher.Constraint("Symmetric", 3, 2, 8, 2, -1, 1),
    Sketcher.Constraint("Symmetric", 2, 2, 11, 2, -1, 1),
    Sketcher.Constraint("Symmetric", 4, 2, 12, 2, -1, 1),
    Sketcher.Constraint("Symmetric", 7, 2, 15, 2, -1, 1),
    Sketcher.Constraint("Parallel", 0, 2),
    Sketcher.Constraint("Perpendicular", 2, 3),
    Sketcher.Constraint("Perpendicular", 3, 4),
    Sketcher.Constraint("Perpendicular", 4, 5),
    Sketcher.Constraint("Parallel", 5, 7),
    Sketcher.Constraint("Perpendicular", 8, 9),
    Sketcher.Constraint("Parallel", 9, 11),
    Sketcher.Constraint("Perpendicular", 12, 13),
    Sketcher.Constraint("Parallel", 13, 15),
    Sketcher.Constraint("Equal", 3, 4),
    Sketcher.Constraint("Equal", 0, 5),
    Sketcher.Constraint("Equal", 2, 7),
    Sketcher.Constraint("Radius", 1, Q("19 mm")),
    Sketcher.Constraint("Angle", 0, Q("45 deg")),
    Sketcher.Constraint("Distance", 3, Q("6 mm")),
    Sketcher.Constraint("Distance", 0, Q("9.52153 mm")),
    Sketcher.Constraint("Distance", 2, Q("9.523689 mm")),
])
pocket10 = doc.addObject("PartDesign::Pocket", "Pocket009")
body.addObject(pocket10)
pocket10.Profile = sketch13
pocket10.Length = 10
pocket10.Reversed = True

doc.recompute()
